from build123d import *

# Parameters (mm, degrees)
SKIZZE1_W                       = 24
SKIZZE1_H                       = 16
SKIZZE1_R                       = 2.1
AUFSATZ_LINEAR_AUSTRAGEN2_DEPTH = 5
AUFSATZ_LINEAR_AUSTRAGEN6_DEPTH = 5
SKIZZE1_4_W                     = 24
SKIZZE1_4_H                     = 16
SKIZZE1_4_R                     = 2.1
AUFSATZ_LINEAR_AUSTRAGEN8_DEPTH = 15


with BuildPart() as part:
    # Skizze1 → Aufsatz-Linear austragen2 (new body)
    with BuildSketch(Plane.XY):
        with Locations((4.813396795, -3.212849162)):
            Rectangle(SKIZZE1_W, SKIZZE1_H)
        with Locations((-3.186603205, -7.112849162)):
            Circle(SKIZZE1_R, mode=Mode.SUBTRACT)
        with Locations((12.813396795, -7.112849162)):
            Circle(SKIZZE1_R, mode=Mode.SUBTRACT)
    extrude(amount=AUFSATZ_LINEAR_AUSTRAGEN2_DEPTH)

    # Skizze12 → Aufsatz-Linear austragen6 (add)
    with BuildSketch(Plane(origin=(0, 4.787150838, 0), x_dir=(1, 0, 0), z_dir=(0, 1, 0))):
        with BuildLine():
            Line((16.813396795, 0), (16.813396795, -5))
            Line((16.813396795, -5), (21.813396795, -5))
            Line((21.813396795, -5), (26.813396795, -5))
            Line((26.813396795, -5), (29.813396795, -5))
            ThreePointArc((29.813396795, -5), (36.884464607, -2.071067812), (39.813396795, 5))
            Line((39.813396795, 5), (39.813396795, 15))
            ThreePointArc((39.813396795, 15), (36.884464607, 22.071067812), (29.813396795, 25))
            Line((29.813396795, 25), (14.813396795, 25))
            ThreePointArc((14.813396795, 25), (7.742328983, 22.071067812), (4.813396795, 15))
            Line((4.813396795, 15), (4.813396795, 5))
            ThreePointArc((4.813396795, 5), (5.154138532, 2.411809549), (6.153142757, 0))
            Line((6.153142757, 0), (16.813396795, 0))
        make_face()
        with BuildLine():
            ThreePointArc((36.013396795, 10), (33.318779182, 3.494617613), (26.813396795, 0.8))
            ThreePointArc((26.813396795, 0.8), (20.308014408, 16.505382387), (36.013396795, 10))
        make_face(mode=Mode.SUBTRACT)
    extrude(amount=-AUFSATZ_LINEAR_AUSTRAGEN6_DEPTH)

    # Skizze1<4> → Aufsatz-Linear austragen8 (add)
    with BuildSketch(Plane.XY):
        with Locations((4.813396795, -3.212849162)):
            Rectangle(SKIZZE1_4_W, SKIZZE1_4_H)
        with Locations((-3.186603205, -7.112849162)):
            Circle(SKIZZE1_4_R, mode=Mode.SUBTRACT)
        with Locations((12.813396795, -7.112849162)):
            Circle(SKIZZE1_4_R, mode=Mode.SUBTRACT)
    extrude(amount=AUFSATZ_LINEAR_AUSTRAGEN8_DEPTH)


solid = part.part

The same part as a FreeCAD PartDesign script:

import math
import FreeCAD as App
import Part
import Sketcher

V = App.Vector

doc = App.newDocument("Part")
body = doc.addObject("PartDesign::Body", "Body")

sketch1 = body.newObject("Sketcher::SketchObject", "Sketch")
sketch1.AttachmentSupport = (doc.getObject("XY_Plane"), [""])
sketch1.MapMode = "FlatFace"
sketch1.addGeometry(Part.LineSegment(V(-7.2, 4.8, 0), V(-7.2, -11.2, 0)), False)
sketch1.addGeometry(Part.LineSegment(V(-7.2, -11.2, 0), V(16.8, -11.2, 0)), False)
sketch1.addGeometry(Part.LineSegment(V(16.8, -11.2, 0), V(16.8, 4.8, 0)), False)
sketch1.addGeometry(Part.LineSegment(V(16.8, 4.8, 0), V(-7.2, 4.8, 0)), False)
sketch1.addGeometry(Part.Circle(V(-3.2, -7.1, 0), V(0, 0, 1), 2.1), False)
sketch1.addGeometry(Part.Circle(V(12.8, -7.1, 0), V(0, 0, 1), 2.1), False)
sketch1.addConstraint(Sketcher.Constraint("Coincident", 0, 2, 1, 1))
sketch1.addConstraint(Sketcher.Constraint("Coincident", 1, 2, 2, 1))
sketch1.addConstraint(Sketcher.Constraint("Coincident", 2, 2, 3, 1))
sketch1.addConstraint(Sketcher.Constraint("Coincident", 3, 2, 0, 1))
sketch1.addConstraint(Sketcher.Constraint("Vertical", 0))
sketch1.addConstraint(Sketcher.Constraint("Horizontal", 1))
sketch1.addConstraint(Sketcher.Constraint("Vertical", 2))
sketch1.addConstraint(Sketcher.Constraint("Horizontal", 3))
sketch1.addConstraint(Sketcher.Constraint("Equal", 4, 5))
sketch1.addConstraint(Sketcher.Constraint("Horizontal", 4, 3, 5, 3))
sketch1.addConstraint(Sketcher.Constraint("Diameter", 4, 4.2))
sketch1.addConstraint(Sketcher.Constraint("DistanceX", 1, 1, 1, 2, 24.0))
sketch1.addConstraint(Sketcher.Constraint("DistanceY", 0, 2, 0, 1, 16.0))
sketch1.addConstraint(Sketcher.Constraint("DistanceX", 4, 3, 5, 3, 16.0))
sketch1.addConstraint(Sketcher.Constraint("DistanceX", 0, 2, 4, 3, 4.0))
sketch1.addConstraint(Sketcher.Constraint("DistanceY", 0, 2, 4, 3, 4.1))
sketch1.addConstraint(Sketcher.Constraint("DistanceY", 4, 3, -1, 1, 7.112849))
sketch1.addConstraint(Sketcher.Constraint("DistanceX", 4, 3, -1, 1, 3.186603))
pad1 = body.newObject("PartDesign::Pad", "Pad")
pad1.Profile = sketch1
pad1.Length = 5

sketch2 = body.newObject("Sketcher::SketchObject", "Sketch001")
sketch2.AttachmentSupport = (doc.getObject("XZ_Plane"), [""])
sketch2.MapMode = "FlatFace"
sketch2.AttachmentOffset = App.Placement(V(0, 0, -4.787151), App.Rotation())
sketch2.addGeometry(Part.LineSegment(V(17, 0, 0), V(17, 5, 0)), False)
sketch2.addGeometry(Part.LineSegment(V(17, 5, 0), V(30, 5, 0)), False)
sketch2.addGeometry(Part.ArcOfCircle(Part.Circle(V(30, -5, 0), V(0, 0, 1), 10), math.radians(0), math.radians(90)), False)
sketch2.addGeometry(Part.LineSegment(V(40, -5, 0), V(40, -15, 0)), False)
sketch2.addGeometry(Part.ArcOfCircle(Part.Circle(V(30, -15, 0), V(0, 0, 1), 10), math.radians(-90), math.radians(0)), False)
sketch2.addGeometry(Part.LineSegment(V(30, -25, 0), V(15, -25, 0)), False)
sketch2.addGeometry(Part.ArcOfCircle(Part.Circle(V(15, -15, 0), V(0, 0, 1), 10), math.radians(180), math.radians(270)), False)
sketch2.addGeometry(Part.LineSegment(V(5, -15, 0), V(5, -5, 0)), False)
sketch2.addGeometry(Part.ArcOfCircle(Part.Circle(V(15, -5, 0), V(0, 0, 1), 10), math.radians(150), math.radians(180)), False)
sketch2.addGeometry(Part.LineSegment(V(6, 0, 0), V(17, 0, 0)), False)
sketch2.addGeometry(Part.ArcOfCircle(Part.Circle(V(27, -10, 0), V(0, 0, 1), 9), math.radians(90), math.radians(360)), False)
sketch2.addGeometry(Part.ArcOfCircle(Part.Circle(V(27, -10, 0), V(0, 0, 1), 9), math.radians(0), math.radians(90)), False)
sketch2.addConstraint(Sketcher.Constraint("Coincident", 0, 2, 1, 1))
sketch2.addConstraint(Sketcher.Constraint("Tangent", 1, 2, 2, 2))
sketch2.addConstraint(Sketcher.Constraint("Tangent", 2, 1, 3, 1))
sketch2.addConstraint(Sketcher.Constraint("Tangent", 3, 2, 4, 2))
sketch2.addConstraint(Sketcher.Constraint("Tangent", 4, 1, 5, 1))
sketch2.addConstraint(Sketcher.Constraint("Tangent", 5, 2, 6, 2))
sketch2.addConstraint(Sketcher.Constraint("Tangent", 6, 1, 7, 1))
sketch2.addConstraint(Sketcher.Constraint("Tangent", 7, 2, 8, 2))
sketch2.addConstraint(Sketcher.Constraint("Coincident", 8, 1, 9, 1))
sketch2.addConstraint(Sketcher.Constraint("Coincident", 9, 2, 0, 1))
sketch2.addConstraint(Sketcher.Constraint("Tangent", 10, 1, 11, 2))
sketch2.addConstraint(Sketcher.Constraint("Coincident", 11, 1, 10, 2))
sketch2.addConstraint(Sketcher.Constraint("Vertical", 0))
sketch2.addConstraint(Sketcher.Constraint("Horizontal", 1))
sketch2.addConstraint(Sketcher.Constraint("Vertical", 3))
sketch2.addConstraint(Sketcher.Constraint("Horizontal", 5))
sketch2.addConstraint(Sketcher.Constraint("Vertical", 7))
sketch2.addConstraint(Sketcher.Constraint("Horizontal", 9))
sketch2.addConstraint(Sketcher.Constraint("Equal", 2, 4))
sketch2.addConstraint(Sketcher.Constraint("Equal", 4, 6))
sketch2.addConstraint(Sketcher.Constraint("Equal", 6, 8))
sketch2.addConstraint(Sketcher.Constraint("PointOnObject", 8, 1, -1))
sketch2.addConstraint(Sketcher.Constraint("Horizontal", 2, 3, 8, 3))
sketch2.addConstraint(Sketcher.Constraint("Horizontal", 10, 3, 11, 1))
sketch2.addConstraint(Sketcher.Constraint("Vertical", 11, 3, 10, 1))
sketch2.addConstraint(Sketcher.Constraint("Radius", 2, 10.0))
sketch2.addConstraint(Sketcher.Constraint("Radius", 10, 9.2))
sketch2.addConstraint(Sketcher.Constraint("DistanceX", 1, 1, 1, 2, 13.0))
sketch2.addConstraint(Sketcher.Constraint("DistanceX", 5, 2, 5, 1, 15.0))
sketch2.addConstraint(Sketcher.Constraint("DistanceY", 0, 1, 0, 2, 5.0))
sketch2.addConstraint(Sketcher.Constraint("DistanceY", 3, 2, 3, 1, 10.0))
sketch2.addConstraint(Sketcher.Constraint("DistanceY", 10, 3, -1, 1, 10.0))
sketch2.addConstraint(Sketcher.Constraint("DistanceX", 10, 3, 2, 3, 3.0))
sketch2.addConstraint(Sketcher.Constraint("DistanceX", -1, 1, 2, 3, 29.813397))
pad2 = body.newObject("PartDesign::Pad", "Pad001")
pad2.Profile = sketch2
pad2.Length = 5

sketch3 = body.newObject("Sketcher::SketchObject", "Sketch002")
sketch3.AttachmentSupport = (doc.getObject("XY_Plane"), [""])
sketch3.MapMode = "FlatFace"
sketch3.addGeometry(Part.LineSegment(V(-7.2, 4.8, 0), V(-7.2, -11.2, 0)), False)
sketch3.addGeometry(Part.LineSegment(V(-7.2, -11.2, 0), V(16.8, -11.2, 0)), False)
sketch3.addGeometry(Part.LineSegment(V(16.8, -11.2, 0), V(16.8, 4.8, 0)), False)
sketch3.addGeometry(Part.LineSegment(V(16.8, 4.8, 0), V(-7.2, 4.8, 0)), False)
sketch3.addGeometry(Part.Circle(V(-3.2, -7.1, 0), V(0, 0, 1), 2.1), False)
sketch3.addGeometry(Part.Circle(V(12.8, -7.1, 0), V(0, 0, 1), 2.1), False)
sketch3.addConstraint(Sketcher.Constraint("Coincident", 0, 2, 1, 1))
sketch3.addConstraint(Sketcher.Constraint("Coincident", 1, 2, 2, 1))
sketch3.addConstraint(Sketcher.Constraint("Coincident", 2, 2, 3, 1))
sketch3.addConstraint(Sketcher.Constraint("Coincident", 3, 2, 0, 1))
sketch3.addConstraint(Sketcher.Constraint("Vertical", 0))
sketch3.addConstraint(Sketcher.Constraint("Horizontal", 1))
sketch3.addConstraint(Sketcher.Constraint("Vertical", 2))
sketch3.addConstraint(Sketcher.Constraint("Horizontal", 3))
sketch3.addConstraint(Sketcher.Constraint("Equal", 4, 5))
sketch3.addConstraint(Sketcher.Constraint("Horizontal", 4, 3, 5, 3))
sketch3.addConstraint(Sketcher.Constraint("Diameter", 4, 4.2))
sketch3.addConstraint(Sketcher.Constraint("DistanceX", 1, 1, 1, 2, 24.0))
sketch3.addConstraint(Sketcher.Constraint("DistanceY", 0, 2, 0, 1, 16.0))
sketch3.addConstraint(Sketcher.Constraint("DistanceX", 4, 3, 5, 3, 16.0))
sketch3.addConstraint(Sketcher.Constraint("DistanceX", 0, 2, 4, 3, 4.0))
sketch3.addConstraint(Sketcher.Constraint("DistanceY", 0, 2, 4, 3, 4.1))
sketch3.addConstraint(Sketcher.Constraint("DistanceY", 4, 3, -1, 1, 7.112849))
sketch3.addConstraint(Sketcher.Constraint("DistanceX", 4, 3, -1, 1, 3.186603))
pad3 = body.newObject("PartDesign::Pad", "Pad002")
pad3.Profile = sketch3
pad3.Length = 15

doc.recompute()
